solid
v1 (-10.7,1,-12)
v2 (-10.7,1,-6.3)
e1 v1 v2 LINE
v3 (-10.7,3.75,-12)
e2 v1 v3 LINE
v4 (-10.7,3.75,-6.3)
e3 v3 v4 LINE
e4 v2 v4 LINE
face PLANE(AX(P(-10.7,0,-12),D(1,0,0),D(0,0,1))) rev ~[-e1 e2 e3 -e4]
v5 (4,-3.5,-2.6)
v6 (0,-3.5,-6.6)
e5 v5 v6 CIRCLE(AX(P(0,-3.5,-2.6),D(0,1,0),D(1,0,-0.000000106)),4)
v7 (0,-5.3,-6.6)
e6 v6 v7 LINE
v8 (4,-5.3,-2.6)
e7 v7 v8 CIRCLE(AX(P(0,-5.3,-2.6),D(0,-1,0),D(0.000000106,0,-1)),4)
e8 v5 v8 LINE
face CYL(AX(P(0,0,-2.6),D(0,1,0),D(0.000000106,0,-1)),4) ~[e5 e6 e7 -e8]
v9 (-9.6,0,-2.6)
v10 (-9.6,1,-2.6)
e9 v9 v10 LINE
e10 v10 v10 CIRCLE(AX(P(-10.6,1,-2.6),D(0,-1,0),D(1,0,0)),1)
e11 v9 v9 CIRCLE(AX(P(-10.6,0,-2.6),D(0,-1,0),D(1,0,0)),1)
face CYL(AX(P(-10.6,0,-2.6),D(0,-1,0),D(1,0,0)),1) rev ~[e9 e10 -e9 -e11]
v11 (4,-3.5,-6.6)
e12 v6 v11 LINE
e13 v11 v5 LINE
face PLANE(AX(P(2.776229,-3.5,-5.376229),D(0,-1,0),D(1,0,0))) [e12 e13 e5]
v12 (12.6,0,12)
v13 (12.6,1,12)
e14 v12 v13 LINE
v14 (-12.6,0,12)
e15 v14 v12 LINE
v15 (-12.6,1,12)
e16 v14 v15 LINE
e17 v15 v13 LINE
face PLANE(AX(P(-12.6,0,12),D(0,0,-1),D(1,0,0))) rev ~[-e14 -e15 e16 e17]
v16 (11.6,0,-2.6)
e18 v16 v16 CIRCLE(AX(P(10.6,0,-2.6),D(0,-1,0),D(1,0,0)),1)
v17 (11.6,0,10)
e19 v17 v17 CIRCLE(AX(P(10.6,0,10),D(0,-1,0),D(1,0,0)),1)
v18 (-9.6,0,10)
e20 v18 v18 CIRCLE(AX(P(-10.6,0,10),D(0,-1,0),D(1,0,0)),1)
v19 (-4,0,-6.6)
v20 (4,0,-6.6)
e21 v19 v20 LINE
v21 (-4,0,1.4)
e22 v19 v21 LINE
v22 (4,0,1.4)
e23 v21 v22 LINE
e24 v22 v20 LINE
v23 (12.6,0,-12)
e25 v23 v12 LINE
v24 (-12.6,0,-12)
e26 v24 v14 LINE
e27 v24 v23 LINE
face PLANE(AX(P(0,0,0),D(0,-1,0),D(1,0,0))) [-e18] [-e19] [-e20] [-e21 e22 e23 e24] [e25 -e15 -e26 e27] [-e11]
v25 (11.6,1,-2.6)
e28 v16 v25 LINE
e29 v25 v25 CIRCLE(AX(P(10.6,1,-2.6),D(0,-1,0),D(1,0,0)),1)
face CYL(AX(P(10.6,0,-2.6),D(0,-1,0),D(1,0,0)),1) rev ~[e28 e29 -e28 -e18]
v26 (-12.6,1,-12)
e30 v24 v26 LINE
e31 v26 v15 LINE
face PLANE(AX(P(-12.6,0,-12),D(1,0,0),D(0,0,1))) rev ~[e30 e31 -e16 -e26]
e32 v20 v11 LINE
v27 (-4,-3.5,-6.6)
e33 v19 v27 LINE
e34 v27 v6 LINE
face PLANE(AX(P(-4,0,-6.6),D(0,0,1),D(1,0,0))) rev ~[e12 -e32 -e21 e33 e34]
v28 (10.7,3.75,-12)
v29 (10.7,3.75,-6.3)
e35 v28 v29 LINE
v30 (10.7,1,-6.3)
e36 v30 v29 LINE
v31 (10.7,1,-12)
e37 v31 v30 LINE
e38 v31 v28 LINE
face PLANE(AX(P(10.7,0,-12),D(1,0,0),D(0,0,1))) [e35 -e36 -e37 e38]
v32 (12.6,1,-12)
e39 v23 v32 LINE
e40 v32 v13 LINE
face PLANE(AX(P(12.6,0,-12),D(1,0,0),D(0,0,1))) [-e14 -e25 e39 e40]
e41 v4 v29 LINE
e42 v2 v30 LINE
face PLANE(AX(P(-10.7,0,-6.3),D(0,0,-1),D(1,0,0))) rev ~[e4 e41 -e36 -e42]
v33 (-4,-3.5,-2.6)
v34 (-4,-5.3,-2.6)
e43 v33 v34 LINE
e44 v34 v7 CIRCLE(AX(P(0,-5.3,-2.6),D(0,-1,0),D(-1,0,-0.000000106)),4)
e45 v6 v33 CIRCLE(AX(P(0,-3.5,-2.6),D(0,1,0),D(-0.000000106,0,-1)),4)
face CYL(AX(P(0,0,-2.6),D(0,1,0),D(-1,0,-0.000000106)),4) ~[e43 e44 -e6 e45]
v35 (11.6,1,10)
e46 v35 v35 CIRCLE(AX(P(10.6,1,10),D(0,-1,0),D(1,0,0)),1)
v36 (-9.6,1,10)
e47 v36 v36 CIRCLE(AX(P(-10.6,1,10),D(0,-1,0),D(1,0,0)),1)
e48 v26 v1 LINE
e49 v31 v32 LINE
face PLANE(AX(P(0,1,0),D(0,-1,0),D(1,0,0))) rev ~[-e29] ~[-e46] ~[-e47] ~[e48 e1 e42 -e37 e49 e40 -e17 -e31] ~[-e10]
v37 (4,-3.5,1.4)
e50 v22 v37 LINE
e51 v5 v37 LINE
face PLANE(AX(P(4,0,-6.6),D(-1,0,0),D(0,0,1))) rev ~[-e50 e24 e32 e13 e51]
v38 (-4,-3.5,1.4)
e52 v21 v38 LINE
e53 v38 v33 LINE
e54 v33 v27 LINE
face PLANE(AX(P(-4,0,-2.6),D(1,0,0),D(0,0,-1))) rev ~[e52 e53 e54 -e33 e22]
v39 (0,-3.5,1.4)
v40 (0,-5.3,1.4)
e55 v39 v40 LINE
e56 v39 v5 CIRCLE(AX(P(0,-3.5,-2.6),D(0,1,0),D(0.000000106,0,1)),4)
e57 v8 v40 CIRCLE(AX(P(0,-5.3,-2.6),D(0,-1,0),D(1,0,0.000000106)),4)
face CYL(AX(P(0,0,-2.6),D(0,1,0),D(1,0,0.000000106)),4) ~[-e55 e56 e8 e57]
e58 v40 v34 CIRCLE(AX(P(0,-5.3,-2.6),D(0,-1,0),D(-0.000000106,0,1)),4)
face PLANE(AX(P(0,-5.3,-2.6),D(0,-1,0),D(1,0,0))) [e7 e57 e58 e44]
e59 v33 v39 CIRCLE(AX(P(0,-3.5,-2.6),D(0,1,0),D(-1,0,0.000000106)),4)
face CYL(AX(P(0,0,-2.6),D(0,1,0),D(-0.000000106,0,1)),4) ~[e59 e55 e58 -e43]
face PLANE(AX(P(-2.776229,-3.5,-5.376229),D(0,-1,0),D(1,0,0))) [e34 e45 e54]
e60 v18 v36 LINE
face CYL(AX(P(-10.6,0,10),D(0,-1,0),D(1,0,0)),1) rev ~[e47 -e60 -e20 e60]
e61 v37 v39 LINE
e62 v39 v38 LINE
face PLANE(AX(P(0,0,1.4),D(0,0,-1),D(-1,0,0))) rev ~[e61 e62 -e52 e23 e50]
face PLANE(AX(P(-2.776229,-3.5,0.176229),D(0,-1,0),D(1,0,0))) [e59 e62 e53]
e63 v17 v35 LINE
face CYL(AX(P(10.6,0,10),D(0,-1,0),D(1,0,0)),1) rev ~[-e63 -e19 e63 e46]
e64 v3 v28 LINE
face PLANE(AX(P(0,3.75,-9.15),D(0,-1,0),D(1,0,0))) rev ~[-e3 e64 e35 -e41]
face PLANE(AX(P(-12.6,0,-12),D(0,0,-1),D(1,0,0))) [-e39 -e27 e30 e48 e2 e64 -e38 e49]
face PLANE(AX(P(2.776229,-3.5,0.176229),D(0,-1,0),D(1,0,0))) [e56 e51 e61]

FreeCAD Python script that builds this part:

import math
import FreeCAD as App
import Part
import Sketcher

V = App.Vector

doc = App.newDocument("Part")
body = doc.addObject("PartDesign::Body", "Body")

sketch1 = body.newObject("Sketcher::SketchObject", "Sketch")
sketch1.AttachmentSupport = (doc.getObject("XZ_Plane"), [""])
sketch1.MapMode = "FlatFace"
sketch1.addGeometry([
    Part.LineSegment(V(-12.6, 12, 0), V(-12.6, -12, 0)),
    Part.LineSegment(V(-12.6, -12, 0), V(12.6, -12, 0)),
    Part.LineSegment(V(12.6, -12, 0), V(12.6, 12, 0)),
    Part.LineSegment(V(12.6, 12, 0), V(-12.6, 12, 0)),
    Part.Circle(V(-10.6, -2.6, 0), V(0, 0, 1), 1),
    Part.Circle(V(10.6, -2.6, 0), V(0, 0, 1), 1),
    Part.Circle(V(-10.6, 10, 0), V(0, 0, 1), 1),
    Part.Circle(V(10.6, 10, 0), V(0, 0, 1), 1),
], False)
sketch1.addConstraint([
    Sketcher.Constraint("Coincident", 0, 2, 1, 1),
    Sketcher.Constraint("Coincident", 1, 2, 2, 1),
    Sketcher.Constraint("Coincident", 2, 2, 3, 1),
    Sketcher.Constraint("Coincident", 3, 2, 0, 1),
    Sketcher.Constraint("Vertical", 0),
    Sketcher.Constraint("Horizontal", 1),
    Sketcher.Constraint("Vertical", 2),
    Sketcher.Constraint("Horizontal", 3),
    Sketcher.Constraint("Equal", 4, 5),
    Sketcher.Constraint("Equal", 5, 6),
    Sketcher.Constraint("Equal", 6, 7),
    Sketcher.Constraint("Symmetric", 0, 2, 2, 2, -1, 1),
    Sketcher.Constraint("Symmetric", 4, 3, 5, 3, -2),
    Sketcher.Constraint("Symmetric", 6, 3, 7, 3, -2),
    Sketcher.Constraint("Vertical", 4, 3, 6, 3),
    Sketcher.Constraint("Diameter", 4, 2.0),
    Sketcher.Constraint("DistanceY", 0, 2, 0, 1, 24.0),
    Sketcher.Constraint("DistanceX", 1, 1, 1, 2, 25.2),
    Sketcher.Constraint("DistanceY", -1, 1, 6, 3, 10.0),
    Sketcher.Constraint("DistanceX", 0, 2, 4, 3, 2.0),
    Sketcher.Constraint("DistanceY", 4, 3, -1, 1, 2.6),
])
pad1 = body.newObject("PartDesign::Pad", "Pad")
pad1.Profile = sketch1
pad1.Length = 1
pad1.Reversed = True

sketch2 = body.newObject("Sketcher::SketchObject", "Sketch001")
sketch2.AttachmentSupport = (doc.getObject("XZ_Plane"), [""])
sketch2.MapMode = "FlatFace"
sketch2.addGeometry([
    Part.LineSegment(V(0, -6.6, 0), V(4, -6.6, 0)),
    Part.LineSegment(V(4, -6.6, 0), V(4, -2.6, 0)),
    Part.ArcOfCircle(Part.Circle(V(0, -2.6, 0), V(0, 0, 1), 4), math.radians(-89.999994), math.radians(-0.000006)),
    Part.LineSegment(V(-4, -6.6, 0), V(0, -6.6, 0)),
    Part.ArcOfCircle(Part.Circle(V(0, -2.6, 0), V(0, 0, 1), 4), math.radians(-179.999994), math.radians(-90.000006)),
    Part.LineSegment(V(-4, -2.6, 0), V(-4, -6.6, 0)),
    Part.ArcOfCircle(Part.Circle(V(0, -2.6, 0), V(0, 0, 1), 4), math.radians(0.000006), math.radians(89.999994)),
    Part.LineSegment(V(4, -2.6, 0), V(4, 1.4, 0)),
    Part.LineSegment(V(4, 1.4, 0), V(0, 1.4, 0)),
    Part.LineSegment(V(-4, 1.4, 0), V(-4, -2.6, 0)),
    Part.ArcOfCircle(Part.Circle(V(0, -2.6, 0), V(0, 0, 1), 4), math.radians(90.000006), math.radians(179.999994)),
    Part.LineSegment(V(0, 1.4, 0), V(-4, 1.4, 0)),
], False)
sketch2.addConstraint([
    Sketcher.Constraint("Coincident", 0, 2, 1, 1),
    Sketcher.Constraint("Tangent", 1, 2, 2, 2),
    Sketcher.Constraint("Tangent", 2, 1, 0, 1),
    Sketcher.Constraint("Tangent", 3, 2, 4, 2),
    Sketcher.Constraint("Tangent", 4, 1, 5, 1),
    Sketcher.Constraint("Coincident", 5, 2, 3, 1),
    Sketcher.Constraint("Tangent", 6, 1, 7, 1),
    Sketcher.Constraint("Coincident", 7, 2, 8, 1),
    Sketcher.Constraint("Tangent", 8, 2, 6, 2),
    Sketcher.Constraint("Tangent", 9, 2, 10, 2),
    Sketcher.Constraint("Tangent", 10, 1, 11, 1),
    Sketcher.Constraint("Coincident", 11, 2, 9, 1),
    Sketcher.Constraint("Horizontal", 0),
    Sketcher.Constraint("Vertical", 1),
    Sketcher.Constraint("Horizontal", 3),
    Sketcher.Constraint("Vertical", 5),
    Sketcher.Constraint("Vertical", 7),
    Sketcher.Constraint("Horizontal", 8),
    Sketcher.Constraint("Vertical", 9),
    Sketcher.Constraint("Horizontal", 11),
    Sketcher.Constraint("Coincident", 4, 3, 2, 3),
    Sketcher.Constraint("Coincident", 6, 3, 2, 3),
    Sketcher.Constraint("Coincident", 10, 3, 2, 3),
    Sketcher.Constraint("Equal", 2, 4),
    Sketcher.Constraint("Equal", 4, 6),
    Sketcher.Constraint("Equal", 6, 10),
    Sketcher.Constraint("PointOnObject", 2, 3, -2),
    Sketcher.Constraint("Radius", 2, 4.0),
    Sketcher.Constraint("DistanceY", 2, 3, -1, 1, 2.6),
])
pad2 = body.newObject("PartDesign::Pad", "Pad001")
pad2.Profile = sketch2
pad2.Length = 3.5

sketch3 = body.newObject("Sketcher::SketchObject", "Sketch002")
sketch3.AttachmentSupport = (doc.getObject("XZ_Plane"), [""])
sketch3.MapMode = "FlatFace"
sketch3.addGeometry([
    Part.ArcOfCircle(Part.Circle(V(0, -2.6, 0), V(0, 0, 1), 4), math.radians(-179.999994), math.radians(-90.000006)),
    Part.ArcOfCircle(Part.Circle(V(0, -2.6, 0), V(0, 0, 1), 4), math.radians(-89.999994), math.radians(-0.000006)),
    Part.ArcOfCircle(Part.Circle(V(0, -2.6, 0), V(0, 0, 1), 4), math.radians(0.000006), math.radians(89.999994)),
    Part.ArcOfCircle(Part.Circle(V(0, -2.6, 0), V(0, 0, 1), 4), math.radians(90.000006), math.radians(179.999994)),
], False)
sketch3.addConstraint([
    Sketcher.Constraint("Tangent", 0, 2, 1, 1),
    Sketcher.Constraint("Tangent", 1, 2, 2, 1),
    Sketcher.Constraint("Tangent", 2, 2, 3, 1),
    Sketcher.Constraint("Tangent", 3, 2, 0, 1),
    Sketcher.Constraint("Equal", 0, 1),
    Sketcher.Constraint("Symmetric", 1, 2, 3, 2, -2),
    Sketcher.Constraint("PointOnObject", 0, 2, -2),
    Sketcher.Constraint("PointOnObject", 2, 2, -2),
    Sketcher.Constraint("Horizontal", 3, 3, 1, 2),
    Sketcher.Constraint("Radius", 0, 4.0),
    Sketcher.Constraint("DistanceY", 0, 3, -1, 1, 2.6),
])
pad3 = body.newObject("PartDesign::Pad", "Pad002")
pad3.Profile = sketch3
pad3.Length = 5.3

sketch4 = body.newObject("Sketcher::SketchObject", "Sketch003")
sketch4.AttachmentSupport = (doc.getObject("XZ_Plane"), [""])
sketch4.MapMode = "FlatFace"
sketch4.addGeometry([
    Part.LineSegment(V(-10.7, -6.3, 0), V(-10.7, -12, 0)),
    Part.LineSegment(V(-10.7, -12, 0), V(10.7, -12, 0)),
    Part.LineSegment(V(10.7, -12, 0), V(10.7, -6.3, 0)),
    Part.LineSegment(V(10.7, -6.3, 0), V(-10.7, -6.3, 0)),
], False)
sketch4.addConstraint([
    Sketcher.Constraint("Coincident", 0, 2, 1, 1),
    Sketcher.Constraint("Coincident", 1, 2, 2, 1),
    Sketcher.Constraint("Coincident", 2, 2, 3, 1),
    Sketcher.Constraint("Coincident", 3, 2, 0, 1),
    Sketcher.Constraint("Vertical", 0),
    Sketcher.Constraint("Horizontal", 1),
    Sketcher.Constraint("Vertical", 2),
    Sketcher.Constraint("Horizontal", 3),
    Sketcher.Constraint("DistanceX", 1, 1, 1, 2, 21.4),
    Sketcher.Constraint("DistanceY", 0, 2, 0, 1, 5.7),
    Sketcher.Constraint("DistanceY", 0, 2, -1, 1, 12.0),
    Sketcher.Constraint("DistanceX", 0, 2, -1, 1, 10.7),
])
pad4 = body.newObject("PartDesign::Pad", "Pad003")
pad4.Profile = sketch4
pad4.Length = 3.75
pad4.Reversed = True

doc.recompute()
